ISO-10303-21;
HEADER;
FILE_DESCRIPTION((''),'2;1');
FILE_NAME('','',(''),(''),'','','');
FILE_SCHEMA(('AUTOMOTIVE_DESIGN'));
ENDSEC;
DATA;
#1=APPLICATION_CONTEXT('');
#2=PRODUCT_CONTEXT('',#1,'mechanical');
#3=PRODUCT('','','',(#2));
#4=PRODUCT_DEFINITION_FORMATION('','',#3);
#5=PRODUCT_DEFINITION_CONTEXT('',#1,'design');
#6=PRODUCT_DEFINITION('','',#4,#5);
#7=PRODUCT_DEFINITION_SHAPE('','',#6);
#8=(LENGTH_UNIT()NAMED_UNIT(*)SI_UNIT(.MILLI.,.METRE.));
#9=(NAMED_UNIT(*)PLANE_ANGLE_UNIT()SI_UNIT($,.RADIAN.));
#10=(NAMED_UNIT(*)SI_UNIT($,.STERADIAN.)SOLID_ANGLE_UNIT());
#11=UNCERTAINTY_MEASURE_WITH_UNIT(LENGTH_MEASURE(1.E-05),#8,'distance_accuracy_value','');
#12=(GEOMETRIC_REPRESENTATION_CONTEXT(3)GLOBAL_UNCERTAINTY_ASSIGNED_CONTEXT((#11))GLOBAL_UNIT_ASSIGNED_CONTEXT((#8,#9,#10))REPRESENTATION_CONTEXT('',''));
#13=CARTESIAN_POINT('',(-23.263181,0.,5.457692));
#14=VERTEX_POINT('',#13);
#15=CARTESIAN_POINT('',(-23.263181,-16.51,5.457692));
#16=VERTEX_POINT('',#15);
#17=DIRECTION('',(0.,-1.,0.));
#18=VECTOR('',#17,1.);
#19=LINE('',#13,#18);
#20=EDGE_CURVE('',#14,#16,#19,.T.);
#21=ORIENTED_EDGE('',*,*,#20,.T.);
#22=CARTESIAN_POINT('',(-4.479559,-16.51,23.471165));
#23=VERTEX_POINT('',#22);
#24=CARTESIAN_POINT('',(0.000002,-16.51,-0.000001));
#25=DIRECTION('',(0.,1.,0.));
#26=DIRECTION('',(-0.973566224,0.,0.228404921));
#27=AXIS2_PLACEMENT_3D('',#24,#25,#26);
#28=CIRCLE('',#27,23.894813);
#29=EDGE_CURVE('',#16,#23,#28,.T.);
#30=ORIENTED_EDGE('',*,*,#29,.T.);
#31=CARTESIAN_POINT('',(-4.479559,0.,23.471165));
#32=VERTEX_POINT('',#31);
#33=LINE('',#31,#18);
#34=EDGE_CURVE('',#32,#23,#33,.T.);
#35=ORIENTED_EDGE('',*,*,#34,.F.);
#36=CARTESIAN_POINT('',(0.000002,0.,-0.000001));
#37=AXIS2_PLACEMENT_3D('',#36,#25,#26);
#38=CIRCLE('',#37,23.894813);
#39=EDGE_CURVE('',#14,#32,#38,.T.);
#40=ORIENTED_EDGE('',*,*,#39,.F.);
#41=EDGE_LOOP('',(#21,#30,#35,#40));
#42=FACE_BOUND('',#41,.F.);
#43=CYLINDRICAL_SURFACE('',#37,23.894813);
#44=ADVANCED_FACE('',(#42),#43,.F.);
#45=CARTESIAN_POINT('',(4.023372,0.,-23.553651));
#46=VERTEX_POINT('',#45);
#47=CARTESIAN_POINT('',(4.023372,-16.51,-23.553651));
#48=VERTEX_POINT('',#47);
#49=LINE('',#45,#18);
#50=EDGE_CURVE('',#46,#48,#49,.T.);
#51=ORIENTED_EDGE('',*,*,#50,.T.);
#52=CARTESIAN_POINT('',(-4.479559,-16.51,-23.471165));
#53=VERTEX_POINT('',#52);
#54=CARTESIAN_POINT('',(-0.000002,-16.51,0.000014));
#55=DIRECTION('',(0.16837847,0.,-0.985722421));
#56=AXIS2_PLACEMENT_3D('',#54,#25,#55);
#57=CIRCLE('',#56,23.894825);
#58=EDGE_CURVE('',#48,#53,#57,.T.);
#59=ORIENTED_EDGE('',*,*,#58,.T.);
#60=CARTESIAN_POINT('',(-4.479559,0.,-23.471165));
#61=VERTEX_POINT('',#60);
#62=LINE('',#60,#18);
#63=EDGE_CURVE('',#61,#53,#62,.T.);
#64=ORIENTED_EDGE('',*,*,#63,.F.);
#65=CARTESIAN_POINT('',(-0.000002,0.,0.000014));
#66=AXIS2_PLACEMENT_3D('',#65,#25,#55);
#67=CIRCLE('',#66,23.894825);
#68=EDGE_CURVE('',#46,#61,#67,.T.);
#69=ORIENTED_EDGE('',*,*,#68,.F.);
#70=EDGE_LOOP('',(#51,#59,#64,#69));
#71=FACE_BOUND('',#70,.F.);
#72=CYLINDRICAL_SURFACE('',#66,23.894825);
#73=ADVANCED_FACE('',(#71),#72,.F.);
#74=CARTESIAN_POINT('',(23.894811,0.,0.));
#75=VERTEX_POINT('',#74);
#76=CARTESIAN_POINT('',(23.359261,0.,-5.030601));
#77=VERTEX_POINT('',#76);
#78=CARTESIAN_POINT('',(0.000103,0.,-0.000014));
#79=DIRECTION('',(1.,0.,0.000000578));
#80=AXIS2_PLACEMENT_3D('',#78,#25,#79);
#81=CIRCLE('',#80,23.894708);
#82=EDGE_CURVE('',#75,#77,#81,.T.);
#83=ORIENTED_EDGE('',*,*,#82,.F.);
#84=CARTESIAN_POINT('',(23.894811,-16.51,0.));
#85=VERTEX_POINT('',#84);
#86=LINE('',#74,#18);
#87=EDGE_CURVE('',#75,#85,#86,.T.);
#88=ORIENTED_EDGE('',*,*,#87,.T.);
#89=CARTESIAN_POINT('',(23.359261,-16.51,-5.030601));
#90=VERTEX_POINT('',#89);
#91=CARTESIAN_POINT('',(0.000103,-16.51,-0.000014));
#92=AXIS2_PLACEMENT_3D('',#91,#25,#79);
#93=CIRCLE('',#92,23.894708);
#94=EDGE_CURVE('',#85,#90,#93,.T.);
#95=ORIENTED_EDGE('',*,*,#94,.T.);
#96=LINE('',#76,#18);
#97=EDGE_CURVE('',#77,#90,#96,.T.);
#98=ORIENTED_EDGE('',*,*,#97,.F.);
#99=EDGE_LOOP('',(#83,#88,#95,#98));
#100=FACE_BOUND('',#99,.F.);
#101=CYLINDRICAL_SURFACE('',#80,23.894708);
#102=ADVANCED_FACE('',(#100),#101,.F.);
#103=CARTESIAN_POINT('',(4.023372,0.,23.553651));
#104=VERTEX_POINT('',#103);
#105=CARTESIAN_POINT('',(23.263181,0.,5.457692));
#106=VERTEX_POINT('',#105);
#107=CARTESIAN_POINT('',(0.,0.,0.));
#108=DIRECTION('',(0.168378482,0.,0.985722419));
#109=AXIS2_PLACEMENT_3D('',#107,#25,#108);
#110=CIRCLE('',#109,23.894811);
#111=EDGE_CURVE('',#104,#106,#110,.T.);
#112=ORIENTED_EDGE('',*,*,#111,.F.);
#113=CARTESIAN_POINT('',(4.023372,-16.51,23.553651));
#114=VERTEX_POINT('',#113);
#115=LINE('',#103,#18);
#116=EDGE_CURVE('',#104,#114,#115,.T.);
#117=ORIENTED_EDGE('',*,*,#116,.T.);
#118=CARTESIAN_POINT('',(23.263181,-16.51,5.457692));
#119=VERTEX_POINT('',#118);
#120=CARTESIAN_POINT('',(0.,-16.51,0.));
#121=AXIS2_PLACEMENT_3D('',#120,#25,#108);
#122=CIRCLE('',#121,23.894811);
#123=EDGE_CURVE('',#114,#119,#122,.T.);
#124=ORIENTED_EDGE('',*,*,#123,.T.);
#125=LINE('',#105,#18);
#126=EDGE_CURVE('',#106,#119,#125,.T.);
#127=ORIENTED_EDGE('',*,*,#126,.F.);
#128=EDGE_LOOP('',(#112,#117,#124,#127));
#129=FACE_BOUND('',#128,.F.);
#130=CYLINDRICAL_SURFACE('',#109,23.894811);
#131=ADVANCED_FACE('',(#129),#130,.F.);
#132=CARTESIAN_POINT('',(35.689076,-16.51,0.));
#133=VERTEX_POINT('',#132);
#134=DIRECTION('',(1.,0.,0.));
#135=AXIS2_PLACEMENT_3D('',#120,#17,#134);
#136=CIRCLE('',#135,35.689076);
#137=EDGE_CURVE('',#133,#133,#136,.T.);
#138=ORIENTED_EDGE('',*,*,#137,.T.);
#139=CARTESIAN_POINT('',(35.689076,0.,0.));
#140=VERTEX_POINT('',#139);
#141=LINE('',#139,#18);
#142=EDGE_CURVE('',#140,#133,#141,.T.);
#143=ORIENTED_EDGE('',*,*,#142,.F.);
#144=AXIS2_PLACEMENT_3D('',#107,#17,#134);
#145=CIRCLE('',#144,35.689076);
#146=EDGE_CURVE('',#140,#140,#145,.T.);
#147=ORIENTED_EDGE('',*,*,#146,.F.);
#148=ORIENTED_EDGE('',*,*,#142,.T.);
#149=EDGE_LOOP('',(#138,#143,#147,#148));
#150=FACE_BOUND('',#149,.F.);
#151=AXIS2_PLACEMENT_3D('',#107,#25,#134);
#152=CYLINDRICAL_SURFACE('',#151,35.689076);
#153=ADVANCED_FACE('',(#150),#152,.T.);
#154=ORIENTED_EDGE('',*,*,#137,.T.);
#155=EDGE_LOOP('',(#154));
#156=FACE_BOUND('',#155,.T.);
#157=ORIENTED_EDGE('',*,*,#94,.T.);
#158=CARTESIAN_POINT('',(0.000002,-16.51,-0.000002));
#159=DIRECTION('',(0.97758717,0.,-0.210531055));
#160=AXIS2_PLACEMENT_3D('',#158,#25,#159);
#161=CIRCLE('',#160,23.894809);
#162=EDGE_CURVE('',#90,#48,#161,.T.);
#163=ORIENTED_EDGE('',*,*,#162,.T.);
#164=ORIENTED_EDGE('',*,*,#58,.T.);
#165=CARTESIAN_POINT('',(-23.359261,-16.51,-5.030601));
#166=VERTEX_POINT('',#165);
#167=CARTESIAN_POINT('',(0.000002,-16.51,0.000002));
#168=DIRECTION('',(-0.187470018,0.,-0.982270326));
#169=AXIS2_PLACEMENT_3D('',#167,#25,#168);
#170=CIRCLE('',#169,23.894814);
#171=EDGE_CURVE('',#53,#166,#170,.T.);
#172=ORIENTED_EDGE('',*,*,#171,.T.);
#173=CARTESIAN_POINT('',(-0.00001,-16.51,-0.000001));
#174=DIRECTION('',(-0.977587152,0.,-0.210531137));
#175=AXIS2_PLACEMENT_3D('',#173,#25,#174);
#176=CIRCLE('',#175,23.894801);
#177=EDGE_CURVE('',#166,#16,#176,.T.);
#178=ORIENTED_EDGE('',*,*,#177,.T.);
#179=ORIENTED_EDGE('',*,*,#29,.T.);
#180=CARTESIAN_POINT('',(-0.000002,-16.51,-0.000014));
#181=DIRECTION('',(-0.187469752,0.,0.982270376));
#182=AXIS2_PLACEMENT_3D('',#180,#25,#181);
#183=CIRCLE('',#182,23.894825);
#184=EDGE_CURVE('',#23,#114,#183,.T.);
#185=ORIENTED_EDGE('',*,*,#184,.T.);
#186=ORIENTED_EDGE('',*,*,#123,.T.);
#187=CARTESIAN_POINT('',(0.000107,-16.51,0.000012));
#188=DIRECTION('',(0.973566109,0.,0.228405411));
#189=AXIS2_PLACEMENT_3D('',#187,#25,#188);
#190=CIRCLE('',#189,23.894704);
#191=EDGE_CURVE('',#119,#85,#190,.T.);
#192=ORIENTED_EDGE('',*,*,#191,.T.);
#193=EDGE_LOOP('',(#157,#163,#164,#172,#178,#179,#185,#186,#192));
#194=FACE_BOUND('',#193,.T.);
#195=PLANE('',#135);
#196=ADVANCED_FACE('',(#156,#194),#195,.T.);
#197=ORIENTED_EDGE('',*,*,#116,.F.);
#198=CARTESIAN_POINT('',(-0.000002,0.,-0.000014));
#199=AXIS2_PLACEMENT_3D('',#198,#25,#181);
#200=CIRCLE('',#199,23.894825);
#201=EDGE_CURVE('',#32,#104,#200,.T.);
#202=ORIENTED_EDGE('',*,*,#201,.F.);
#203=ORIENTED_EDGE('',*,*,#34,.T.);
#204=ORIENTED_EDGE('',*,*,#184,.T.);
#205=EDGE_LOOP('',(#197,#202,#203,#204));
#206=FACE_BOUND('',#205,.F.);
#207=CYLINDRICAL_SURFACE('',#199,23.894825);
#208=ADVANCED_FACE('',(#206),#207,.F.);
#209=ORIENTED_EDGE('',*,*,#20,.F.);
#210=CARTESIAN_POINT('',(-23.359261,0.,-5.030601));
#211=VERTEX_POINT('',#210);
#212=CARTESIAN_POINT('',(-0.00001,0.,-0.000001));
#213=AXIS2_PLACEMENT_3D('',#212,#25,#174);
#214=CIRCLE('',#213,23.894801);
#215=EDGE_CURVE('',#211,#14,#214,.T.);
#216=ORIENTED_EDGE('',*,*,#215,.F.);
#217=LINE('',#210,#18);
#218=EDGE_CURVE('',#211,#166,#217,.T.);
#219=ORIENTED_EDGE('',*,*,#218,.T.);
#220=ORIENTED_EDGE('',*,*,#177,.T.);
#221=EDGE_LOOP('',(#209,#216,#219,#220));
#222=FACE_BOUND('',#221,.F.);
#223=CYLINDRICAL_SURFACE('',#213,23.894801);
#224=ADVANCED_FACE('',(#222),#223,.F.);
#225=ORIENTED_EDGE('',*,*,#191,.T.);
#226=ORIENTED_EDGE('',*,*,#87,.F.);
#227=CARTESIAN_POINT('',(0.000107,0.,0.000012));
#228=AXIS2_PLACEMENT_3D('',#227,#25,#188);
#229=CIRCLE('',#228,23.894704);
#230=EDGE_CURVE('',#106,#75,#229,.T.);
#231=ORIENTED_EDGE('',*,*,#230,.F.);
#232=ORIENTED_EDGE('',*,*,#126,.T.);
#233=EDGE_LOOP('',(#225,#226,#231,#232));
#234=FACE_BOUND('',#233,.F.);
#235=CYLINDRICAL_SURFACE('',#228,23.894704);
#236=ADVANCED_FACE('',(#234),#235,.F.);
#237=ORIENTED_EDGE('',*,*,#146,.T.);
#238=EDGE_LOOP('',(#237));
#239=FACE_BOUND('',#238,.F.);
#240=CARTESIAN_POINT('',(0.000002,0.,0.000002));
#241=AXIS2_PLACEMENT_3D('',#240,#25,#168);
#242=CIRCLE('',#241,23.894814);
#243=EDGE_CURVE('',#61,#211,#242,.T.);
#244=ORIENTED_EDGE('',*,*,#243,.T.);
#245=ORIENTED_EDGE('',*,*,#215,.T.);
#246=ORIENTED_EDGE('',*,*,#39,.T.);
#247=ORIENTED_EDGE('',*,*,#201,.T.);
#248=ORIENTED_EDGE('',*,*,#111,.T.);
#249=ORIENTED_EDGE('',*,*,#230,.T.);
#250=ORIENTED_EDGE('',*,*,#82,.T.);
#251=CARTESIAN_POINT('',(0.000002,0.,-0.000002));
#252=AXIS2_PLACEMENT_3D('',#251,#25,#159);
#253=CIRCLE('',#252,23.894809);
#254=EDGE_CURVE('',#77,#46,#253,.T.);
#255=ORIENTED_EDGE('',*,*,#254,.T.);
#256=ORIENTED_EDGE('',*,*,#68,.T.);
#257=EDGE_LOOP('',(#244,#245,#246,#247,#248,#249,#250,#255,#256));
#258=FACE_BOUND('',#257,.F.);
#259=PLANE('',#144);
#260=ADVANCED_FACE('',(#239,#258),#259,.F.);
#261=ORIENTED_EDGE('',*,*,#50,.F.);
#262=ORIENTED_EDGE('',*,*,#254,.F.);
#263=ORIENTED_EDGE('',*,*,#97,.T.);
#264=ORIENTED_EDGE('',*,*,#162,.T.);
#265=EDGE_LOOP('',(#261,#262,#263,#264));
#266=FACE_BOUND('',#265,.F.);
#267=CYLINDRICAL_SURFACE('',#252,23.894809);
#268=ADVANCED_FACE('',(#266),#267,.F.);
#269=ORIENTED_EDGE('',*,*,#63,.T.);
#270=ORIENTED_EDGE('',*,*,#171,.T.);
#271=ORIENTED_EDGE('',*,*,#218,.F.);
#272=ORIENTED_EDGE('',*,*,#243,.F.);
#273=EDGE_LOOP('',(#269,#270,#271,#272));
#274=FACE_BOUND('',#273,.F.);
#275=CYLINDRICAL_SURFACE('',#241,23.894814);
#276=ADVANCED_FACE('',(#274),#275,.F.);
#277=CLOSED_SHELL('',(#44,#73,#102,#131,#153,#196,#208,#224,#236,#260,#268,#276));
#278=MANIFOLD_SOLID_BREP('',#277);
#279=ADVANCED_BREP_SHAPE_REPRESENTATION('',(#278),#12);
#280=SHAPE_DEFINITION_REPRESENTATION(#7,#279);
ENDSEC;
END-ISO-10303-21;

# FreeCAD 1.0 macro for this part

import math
import FreeCAD as App
import Part
import Sketcher

V = App.Vector
Q = App.Units.Quantity

doc = App.newDocument("Part")
body = doc.addObject("PartDesign::Body", "Body")

# Sketch on XZ plane
sketch1 = doc.addObject("Sketcher::SketchObject", "Sketch")
body.addObject(sketch1)
sketch1.AttachmentSupport = (doc.XZ_Plane, [""])
sketch1.MapMode = "FlatFace"
sketch1.addGeometry(Part.Circle(V(0, 0, 0), V(0, 0, 1), 35.689076), False)
sketch1.addGeometry(Part.ArcOfCircle(Part.Circle(V(0, 0, 0), V(0, 0, 1), 23.894811), math.radians(13.20318), math.radians(80.306446)), False)
sketch1.addGeometry(Part.ArcOfCircle(Part.Circle(V(0.000107, 0.000012, 0), V(0, 0, 1), 23.894704), math.radians(-0.00003), math.radians(13.20321)), False)
sketch1.addGeometry(Part.ArcOfCircle(Part.Circle(V(0.000103, -0.000014, 0), V(0, 0, 1), 23.894708), math.radians(-12.153498), math.radians(0.000033)), False)
sketch1.addGeometry(Part.ArcOfCircle(Part.Circle(V(0.000002, -0.000002, 0), V(0, 0, 1), 23.894809), math.radians(-80.306451), math.radians(-12.153475)), False)
sketch1.addGeometry(Part.ArcOfCircle(Part.Circle(V(-0.000002, 0.000014, 0), V(0, 0, 1), 23.894825), math.radians(-100.805158), math.radians(-80.306447)), False)
sketch1.addGeometry(Part.ArcOfCircle(Part.Circle(V(0.000002, 0.000002, 0), V(0, 0, 1), 23.894814), math.radians(-167.846519), math.radians(-100.805174)), False)
sketch1.addGeometry(Part.ArcOfCircle(Part.Circle(V(-0.00001, -0.000001, 0), V(0, 0, 1), 23.894801), math.radians(166.796812), math.radians(192.15348)), False)
sketch1.addGeometry(Part.ArcOfCircle(Part.Circle(V(0.000002, -0.000001, 0), V(0, 0, 1), 23.894813), math.radians(100.805174), math.radians(166.796819)), False)
sketch1.addGeometry(Part.ArcOfCircle(Part.Circle(V(-0.000002, -0.000014, 0), V(0, 0, 1), 23.894825), math.radians(80.306447), math.radians(100.805158)), False)
sketch1.addConstraint(Sketcher.Constraint("Coincident", 1, 1, 2, 2))
sketch1.addConstraint(Sketcher.Constraint("Coincident", 2, 1, 3, 2))
sketch1.addConstraint(Sketcher.Constraint("Coincident", 3, 1, 4, 2))
sketch1.addConstraint(Sketcher.Constraint("Coincident", 4, 1, 5, 2))
sketch1.addConstraint(Sketcher.Constraint("Coincident", 5, 1, 6, 2))
sketch1.addConstraint(Sketcher.Constraint("Coincident", 6, 1, 7, 2))
sketch1.addConstraint(Sketcher.Constraint("Coincident", 7, 1, 8, 2))
sketch1.addConstraint(Sketcher.Constraint("Coincident", 8, 1, 9, 2))
sketch1.addConstraint(Sketcher.Constraint("Coincident", 9, 1, 1, 2))
sketch1.addConstraint(Sketcher.Constraint("Coincident", 0, 3, -1, 1))
sketch1.addConstraint(Sketcher.Constraint("Coincident", 1, 3, -1, 1))
sketch1.addConstraint(Sketcher.Constraint("Coincident", 4, 3, -1, 1))
sketch1.addConstraint(Sketcher.Constraint("Coincident", 6, 3, -1, 1))
sketch1.addConstraint(Sketcher.Constraint("Coincident", 8, 3, -1, 1))
sketch1.addConstraint(Sketcher.Constraint("PointOnObject", 7, 3, -1))
sketch1.addConstraint(Sketcher.Constraint("PointOnObject", 2, 1, -1))
sketch1.addConstraint(Sketcher.Constraint("Radius", 7, 23.894801))
sketch1.addConstraint(Sketcher.Constraint("Diameter", 0, 71.378152))
sketch1.addConstraint(Sketcher.Constraint("Radius", 1, 23.894811))
sketch1.addConstraint(Sketcher.Constraint("Radius", 4, 23.894809))
sketch1.addConstraint(Sketcher.Constraint("Radius", 2, 23.894704))
sketch1.addConstraint(Sketcher.Constraint("Radius", 3, 23.894708))
sketch1.addConstraint(Sketcher.Constraint("Radius", 5, 23.894825))
sketch1.addConstraint(Sketcher.Constraint("Radius", 6, 23.894814))
sketch1.addConstraint(Sketcher.Constraint("Radius", 9, 23.894825))
sketch1.addConstraint(Sketcher.Constraint("DistanceY", 3, 1, -1, 1, 5.030601))
sketch1.addConstraint(Sketcher.Constraint("DistanceY", 6, 1, -1, 1, 5.030601))
sketch1.addConstraint(Sketcher.Constraint("DistanceX", 4, 3, 3, 3, 0.000101))
sketch1.addConstraint(Sketcher.Constraint("DistanceX", -1, 1, 1, 1, 23.263181))
sketch1.addConstraint(Sketcher.Constraint("DistanceX", -1, 1, 4, 1, 4.023372))
sketch1.addConstraint(Sketcher.Constraint("DistanceX", 5, 1, -1, 1, 4.479559))
sketch1.addConstraint(Sketcher.Constraint("DistanceX", 7, 1, -1, 1, 23.263181))
sketch1.addConstraint(Sketcher.Constraint("DistanceX", 8, 1, -1, 1, 4.479559))
sketch1.addConstraint(Sketcher.Constraint("DistanceX", -1, 1, 9, 1, 4.023372))
pad1 = doc.addObject("PartDesign::Pad", "Pad")
body.addObject(pad1)
pad1.Profile = sketch1
pad1.Length = Q("0.65 in")

doc.recompute()
